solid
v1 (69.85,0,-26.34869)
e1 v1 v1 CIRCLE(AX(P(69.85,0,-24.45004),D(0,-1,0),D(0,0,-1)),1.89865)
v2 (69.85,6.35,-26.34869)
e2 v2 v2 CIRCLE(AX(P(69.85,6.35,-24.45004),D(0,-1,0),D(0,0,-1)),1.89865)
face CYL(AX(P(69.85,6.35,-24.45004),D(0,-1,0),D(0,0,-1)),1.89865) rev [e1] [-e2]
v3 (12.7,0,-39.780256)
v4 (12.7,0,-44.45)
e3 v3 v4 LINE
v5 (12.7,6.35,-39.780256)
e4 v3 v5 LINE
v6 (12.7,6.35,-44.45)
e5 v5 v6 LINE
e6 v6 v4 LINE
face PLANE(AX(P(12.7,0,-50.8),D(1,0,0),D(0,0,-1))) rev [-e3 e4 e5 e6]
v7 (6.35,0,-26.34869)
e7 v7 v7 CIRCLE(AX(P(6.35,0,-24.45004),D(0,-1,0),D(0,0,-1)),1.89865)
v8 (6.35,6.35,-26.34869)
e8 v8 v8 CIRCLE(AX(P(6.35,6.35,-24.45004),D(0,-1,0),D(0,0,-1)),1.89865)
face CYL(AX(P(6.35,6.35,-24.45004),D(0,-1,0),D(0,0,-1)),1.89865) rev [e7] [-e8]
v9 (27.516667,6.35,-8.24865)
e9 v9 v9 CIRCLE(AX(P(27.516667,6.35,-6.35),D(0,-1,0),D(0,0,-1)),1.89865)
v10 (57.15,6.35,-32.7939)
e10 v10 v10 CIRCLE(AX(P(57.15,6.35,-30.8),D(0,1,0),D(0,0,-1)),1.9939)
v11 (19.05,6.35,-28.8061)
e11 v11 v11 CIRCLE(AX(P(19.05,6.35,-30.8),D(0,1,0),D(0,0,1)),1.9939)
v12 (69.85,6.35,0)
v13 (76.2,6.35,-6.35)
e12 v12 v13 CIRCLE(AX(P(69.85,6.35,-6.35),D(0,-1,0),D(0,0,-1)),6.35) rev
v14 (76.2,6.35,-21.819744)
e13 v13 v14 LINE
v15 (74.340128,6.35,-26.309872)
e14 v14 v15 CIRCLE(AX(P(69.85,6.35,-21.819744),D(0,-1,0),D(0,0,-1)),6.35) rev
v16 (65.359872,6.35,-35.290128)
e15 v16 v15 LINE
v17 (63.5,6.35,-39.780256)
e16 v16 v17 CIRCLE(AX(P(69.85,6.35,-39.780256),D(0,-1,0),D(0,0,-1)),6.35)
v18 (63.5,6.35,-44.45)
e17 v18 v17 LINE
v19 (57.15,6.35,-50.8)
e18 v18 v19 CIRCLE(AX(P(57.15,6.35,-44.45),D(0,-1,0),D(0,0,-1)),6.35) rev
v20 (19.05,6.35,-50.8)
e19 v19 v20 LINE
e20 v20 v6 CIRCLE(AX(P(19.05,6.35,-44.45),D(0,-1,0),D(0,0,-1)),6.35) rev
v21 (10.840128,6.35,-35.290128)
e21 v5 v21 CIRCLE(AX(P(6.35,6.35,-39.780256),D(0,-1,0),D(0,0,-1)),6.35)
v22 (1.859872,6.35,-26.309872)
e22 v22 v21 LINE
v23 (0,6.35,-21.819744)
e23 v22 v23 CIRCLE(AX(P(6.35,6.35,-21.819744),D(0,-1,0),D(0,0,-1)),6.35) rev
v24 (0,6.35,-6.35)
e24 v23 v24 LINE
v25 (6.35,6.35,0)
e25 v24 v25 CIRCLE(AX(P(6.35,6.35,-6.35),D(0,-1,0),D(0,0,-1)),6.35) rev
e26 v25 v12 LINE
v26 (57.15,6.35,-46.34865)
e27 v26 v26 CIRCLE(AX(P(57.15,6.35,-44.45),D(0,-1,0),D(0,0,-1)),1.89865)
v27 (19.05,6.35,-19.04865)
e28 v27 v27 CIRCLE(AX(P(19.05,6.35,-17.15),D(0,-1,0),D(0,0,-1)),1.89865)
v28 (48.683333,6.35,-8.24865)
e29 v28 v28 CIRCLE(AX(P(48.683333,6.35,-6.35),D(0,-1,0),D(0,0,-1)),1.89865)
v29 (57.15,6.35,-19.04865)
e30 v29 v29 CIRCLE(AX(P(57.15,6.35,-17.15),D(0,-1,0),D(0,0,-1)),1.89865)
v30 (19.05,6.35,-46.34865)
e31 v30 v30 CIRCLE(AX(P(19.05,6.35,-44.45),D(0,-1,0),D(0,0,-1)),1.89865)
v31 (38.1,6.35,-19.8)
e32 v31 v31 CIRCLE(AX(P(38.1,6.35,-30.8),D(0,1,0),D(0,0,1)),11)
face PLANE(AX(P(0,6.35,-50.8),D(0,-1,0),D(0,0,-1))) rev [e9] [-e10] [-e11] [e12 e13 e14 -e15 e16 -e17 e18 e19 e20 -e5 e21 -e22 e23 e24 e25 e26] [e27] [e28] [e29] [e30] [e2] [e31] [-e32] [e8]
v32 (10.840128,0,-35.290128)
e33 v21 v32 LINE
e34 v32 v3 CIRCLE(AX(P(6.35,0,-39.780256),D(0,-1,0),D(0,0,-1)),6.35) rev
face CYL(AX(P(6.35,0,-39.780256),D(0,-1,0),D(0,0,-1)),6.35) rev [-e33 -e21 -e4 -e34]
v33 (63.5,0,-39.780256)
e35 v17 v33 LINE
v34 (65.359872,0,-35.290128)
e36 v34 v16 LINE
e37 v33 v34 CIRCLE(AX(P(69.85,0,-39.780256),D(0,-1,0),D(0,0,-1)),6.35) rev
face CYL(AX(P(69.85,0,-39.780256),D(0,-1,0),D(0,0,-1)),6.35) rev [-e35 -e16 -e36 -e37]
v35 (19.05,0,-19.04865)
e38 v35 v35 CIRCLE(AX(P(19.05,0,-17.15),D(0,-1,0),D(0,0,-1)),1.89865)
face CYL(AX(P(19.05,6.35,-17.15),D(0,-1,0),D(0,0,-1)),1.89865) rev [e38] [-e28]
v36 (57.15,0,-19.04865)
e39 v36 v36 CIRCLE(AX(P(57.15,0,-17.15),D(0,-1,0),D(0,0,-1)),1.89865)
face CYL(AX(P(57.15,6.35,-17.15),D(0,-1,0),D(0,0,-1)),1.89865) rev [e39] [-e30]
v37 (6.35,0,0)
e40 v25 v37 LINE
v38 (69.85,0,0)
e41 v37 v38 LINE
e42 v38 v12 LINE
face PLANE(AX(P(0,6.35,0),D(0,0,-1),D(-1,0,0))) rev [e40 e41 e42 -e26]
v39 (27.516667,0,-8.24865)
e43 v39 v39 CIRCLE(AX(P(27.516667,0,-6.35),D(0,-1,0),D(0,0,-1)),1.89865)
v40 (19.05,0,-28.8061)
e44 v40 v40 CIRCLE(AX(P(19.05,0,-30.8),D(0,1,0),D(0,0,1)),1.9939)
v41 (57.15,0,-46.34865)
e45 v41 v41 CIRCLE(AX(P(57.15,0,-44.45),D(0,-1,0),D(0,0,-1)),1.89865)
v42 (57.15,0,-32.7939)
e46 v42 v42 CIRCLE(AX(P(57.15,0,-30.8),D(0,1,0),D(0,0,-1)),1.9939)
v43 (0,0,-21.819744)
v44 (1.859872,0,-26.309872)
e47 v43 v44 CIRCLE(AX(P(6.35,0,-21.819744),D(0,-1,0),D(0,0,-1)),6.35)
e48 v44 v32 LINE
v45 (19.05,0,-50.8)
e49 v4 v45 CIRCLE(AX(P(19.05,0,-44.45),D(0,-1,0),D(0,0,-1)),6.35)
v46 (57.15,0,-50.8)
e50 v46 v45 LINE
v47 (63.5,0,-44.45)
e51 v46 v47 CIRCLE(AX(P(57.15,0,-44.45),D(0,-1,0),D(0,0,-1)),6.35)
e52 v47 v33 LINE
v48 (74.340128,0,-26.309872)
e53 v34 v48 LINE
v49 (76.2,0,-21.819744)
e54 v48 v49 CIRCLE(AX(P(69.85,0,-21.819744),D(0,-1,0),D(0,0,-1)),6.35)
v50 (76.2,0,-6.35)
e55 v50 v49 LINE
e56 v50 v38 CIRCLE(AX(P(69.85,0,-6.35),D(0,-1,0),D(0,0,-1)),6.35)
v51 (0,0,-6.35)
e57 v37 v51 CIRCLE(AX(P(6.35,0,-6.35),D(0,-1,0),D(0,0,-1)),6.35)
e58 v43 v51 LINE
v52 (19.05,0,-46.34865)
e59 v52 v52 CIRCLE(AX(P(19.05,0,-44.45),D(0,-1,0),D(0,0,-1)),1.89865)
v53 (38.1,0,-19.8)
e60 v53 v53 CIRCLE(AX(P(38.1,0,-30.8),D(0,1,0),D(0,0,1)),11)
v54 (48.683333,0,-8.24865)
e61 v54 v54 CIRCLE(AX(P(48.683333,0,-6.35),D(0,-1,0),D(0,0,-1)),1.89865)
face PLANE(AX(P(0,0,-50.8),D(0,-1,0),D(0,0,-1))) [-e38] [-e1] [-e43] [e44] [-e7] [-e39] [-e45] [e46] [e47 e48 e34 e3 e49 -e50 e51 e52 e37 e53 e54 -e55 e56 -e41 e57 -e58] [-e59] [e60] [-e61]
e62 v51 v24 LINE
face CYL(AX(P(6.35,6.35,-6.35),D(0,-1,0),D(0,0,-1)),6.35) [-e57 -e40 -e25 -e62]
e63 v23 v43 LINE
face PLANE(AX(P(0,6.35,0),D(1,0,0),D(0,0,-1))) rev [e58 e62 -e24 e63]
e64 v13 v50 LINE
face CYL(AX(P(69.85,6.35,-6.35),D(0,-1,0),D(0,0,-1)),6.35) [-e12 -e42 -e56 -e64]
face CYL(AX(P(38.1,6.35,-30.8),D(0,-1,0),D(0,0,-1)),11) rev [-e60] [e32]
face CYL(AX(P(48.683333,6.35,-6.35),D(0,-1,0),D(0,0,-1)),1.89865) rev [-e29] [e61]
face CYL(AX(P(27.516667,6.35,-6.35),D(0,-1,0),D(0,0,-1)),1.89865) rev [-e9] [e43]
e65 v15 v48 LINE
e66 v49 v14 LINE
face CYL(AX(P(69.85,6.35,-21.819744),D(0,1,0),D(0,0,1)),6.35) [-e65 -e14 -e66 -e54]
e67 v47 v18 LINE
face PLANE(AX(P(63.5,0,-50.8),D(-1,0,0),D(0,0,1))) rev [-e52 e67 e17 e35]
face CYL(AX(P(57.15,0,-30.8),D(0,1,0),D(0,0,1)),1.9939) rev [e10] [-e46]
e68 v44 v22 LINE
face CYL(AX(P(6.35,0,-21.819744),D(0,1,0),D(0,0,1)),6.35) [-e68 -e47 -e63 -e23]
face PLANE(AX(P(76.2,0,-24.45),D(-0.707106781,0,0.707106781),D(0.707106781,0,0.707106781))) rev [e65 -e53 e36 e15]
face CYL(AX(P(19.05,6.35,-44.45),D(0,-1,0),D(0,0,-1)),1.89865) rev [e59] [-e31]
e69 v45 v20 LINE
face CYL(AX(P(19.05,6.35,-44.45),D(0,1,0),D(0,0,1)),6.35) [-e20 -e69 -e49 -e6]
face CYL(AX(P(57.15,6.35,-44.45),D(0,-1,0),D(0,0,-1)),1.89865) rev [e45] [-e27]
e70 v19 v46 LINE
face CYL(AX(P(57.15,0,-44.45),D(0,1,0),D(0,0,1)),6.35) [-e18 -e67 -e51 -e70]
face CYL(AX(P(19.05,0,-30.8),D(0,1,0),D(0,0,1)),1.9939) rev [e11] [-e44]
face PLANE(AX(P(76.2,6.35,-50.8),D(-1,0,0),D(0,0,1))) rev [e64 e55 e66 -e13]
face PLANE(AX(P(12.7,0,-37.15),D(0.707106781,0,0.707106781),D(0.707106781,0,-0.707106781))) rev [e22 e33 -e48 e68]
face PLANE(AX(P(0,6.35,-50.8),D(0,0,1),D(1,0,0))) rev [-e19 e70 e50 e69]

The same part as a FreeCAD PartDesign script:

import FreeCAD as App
import Part
import Sketcher
from FreeCAD import Vector
Q = App.Units.Quantity


def edges_at(feature, points):
    """Names of the edges that pass closest to the given points."""
    edges = feature.Shape.Edges
    near = lambda p: min(range(len(edges)), key=lambda i: edges[i].distToShape(Part.Vertex(*p))[0])
    return sorted({f"Edge{near(p) + 1}" for p in points})


def add_polygon(sketch, points):
    """Adds a closed chain of lines whose ends are joined by coincident constraints."""
    first, n = sketch.GeometryCount, len(points)
    for a, b in zip(points, points[1:] + points[:1]):
        sketch.addGeometry(Part.LineSegment(App.Vector(*a, 0), App.Vector(*b, 0)), False)
    for i in range(n):
        sketch.addConstraint(Sketcher.Constraint("Coincident", first + i, 2, first + (i + 1) % n, 1))

doc = App.newDocument("Part")
body = doc.addObject("PartDesign::Body", "Body")

# Sketch on XZ plane
sketch1 = body.newObject("Sketcher::SketchObject", "Sketch")
sketch1.AttachmentSupport = (doc.getObject("XZ_Plane"), [""])
sketch1.MapMode = "FlatFace"
add_polygon(sketch1, [(0, 0), (76.2, 0), (76.2, -50.8), (0, -50.8)])  # lines 0-3
sketch1.addGeometry(Part.Circle(Vector(38.1, -30.8, 0), Vector(0, 0, 1), 11), False)  # 4
sketch1.addConstraint([
    Sketcher.Constraint("Horizontal", 0),
    Sketcher.Constraint("Vertical", 1),
    Sketcher.Constraint("Horizontal", 2),
    Sketcher.Constraint("Vertical", 3),
    Sketcher.Constraint("Coincident", 3, 2, -1, 1),
    Sketcher.Constraint("DistanceX", 0, 1, 0, 2, Q("3 in")),
    Sketcher.Constraint("DistanceY", 1, 2, 1, 1, Q("2 in")),
    Sketcher.Constraint("DistanceX", -1, 1, 4, 3, Q("1.5 in")),
    Sketcher.Constraint("Diameter", 4, 22.0),
    Sketcher.Constraint("DistanceY", 4, 3, -1, 1, 30.8),
])
pad1 = body.newObject("PartDesign::Pad", "Pad")
pad1.Profile = sketch1
pad1.Length = Q("0.25 in")
pad1.Reversed = True

# Sketch on XZ plane
sketch2 = body.newObject("Sketcher::SketchObject", "Sketch001")
sketch2.AttachmentSupport = (doc.getObject("XZ_Plane"), [""])
sketch2.MapMode = "FlatFace"
sketch2.AttachmentOffset = App.Placement(Vector(0, 0, -0.25 * 25.4), App.Rotation())
sketch2.addGeometry([
    Part.Circle(Vector(19.05, -30.8, 0), Vector(0, 0, 1), 1.9939),
    Part.Circle(Vector(57.15, -30.8, 0), Vector(0, 0, 1), 1.9939),
], False)
sketch2.addConstraint([
    Sketcher.Constraint("Equal", 0, 1),
    Sketcher.Constraint("Horizontal", 0, 3, 1, 3),
    Sketcher.Constraint("Diameter", 0, Q("0.157 in")),
    Sketcher.Constraint("DistanceX", 0, 3, 1, 3, Q("1.5 in")),
    Sketcher.Constraint("DistanceX", -1, 1, 0, 3, Q("0.75 in")),
    Sketcher.Constraint("DistanceY", 0, 3, -1, 1, 30.8),
])
pocket1 = body.newObject("PartDesign::Pocket", "Pocket")
pocket1.Profile = sketch2
pocket1.Type = "ThroughAll"
pocket1.Reversed = True

# Sketch on XZ plane
sketch3 = body.newObject("Sketcher::SketchObject", "Sketch002")
sketch3.AttachmentSupport = (doc.getObject("XZ_Plane"), [""])
sketch3.MapMode = "FlatFace"
sketch3.addGeometry([
    Part.Circle(Vector(57.15, -44.45, 0), Vector(0, 0, 1), 1.89865),
    Part.Circle(Vector(19.05, -44.45, 0), Vector(0, 0, 1), 1.89865),
    Part.Circle(Vector(19.05, -17.15, 0), Vector(0, 0, 1), 1.89865),
    Part.Circle(Vector(57.15, -17.15, 0), Vector(0, 0, 1), 1.89865),
], False)
sketch3.addConstraint([
    Sketcher.Constraint("Equal", 0, 1),
    Sketcher.Constraint("Equal", 1, 2),
    Sketcher.Constraint("Equal", 2, 3),
    Sketcher.Constraint("Horizontal", 0, 3, 1, 3),
    Sketcher.Constraint("Horizontal", 2, 3, 3, 3),
    Sketcher.Constraint("Vertical", 1, 3, 2, 3),
    Sketcher.Constraint("Vertical", 0, 3, 3, 3),
    Sketcher.Constraint("Diameter", 0, Q("0.1495 in")),
    Sketcher.Constraint("DistanceX", 1, 3, 0, 3, Q("1.5 in")),
    Sketcher.Constraint("DistanceX", -1, 1, 0, 3, Q("2.25 in")),
    Sketcher.Constraint("DistanceY", 0, 3, -1, 1, Q("1.75 in")),
    Sketcher.Constraint("DistanceY", 2, 3, -1, 1, 17.15),
])
pocket2 = body.newObject("PartDesign::Pocket", "Pocket001")
pocket2.Profile = sketch3
pocket2.Type = "ThroughAll"

# Sketch on XZ plane
sketch4 = body.newObject("Sketcher::SketchObject", "Sketch003")
sketch4.AttachmentSupport = (doc.getObject("XZ_Plane"), [""])
sketch4.MapMode = "FlatFace"
sketch4.addGeometry([
    Part.Circle(Vector(69.85, -24.45004, 0), Vector(0, 0, 1), 1.89865),
    Part.Circle(Vector(48.683333, -6.35, 0), Vector(0, 0, 1), 1.89865),
    Part.Circle(Vector(27.516667, -6.35, 0), Vector(0, 0, 1), 1.89865),
    Part.Circle(Vector(6.35, -24.45004, 0), Vector(0, 0, 1), 1.89865),
], False)
sketch4.addConstraint([
    Sketcher.Constraint("Equal", 0, 1),
    Sketcher.Constraint("Equal", 1, 2),
    Sketcher.Constraint("Equal", 2, 3),
    Sketcher.Constraint("Horizontal", 1, 3, 2, 3),
    Sketcher.Constraint("Horizontal", 0, 3, 3, 3),
    Sketcher.Constraint("Diameter", 0, Q("0.1495 in")),
    Sketcher.Constraint("DistanceX", 3, 3, 0, 3, Q("2.5 in")),
    Sketcher.Constraint("DistanceX", -1, 1, 0, 3, Q("2.75 in")),
    Sketcher.Constraint("DistanceY", 1, 3, -1, 1, Q("0.25 in")),
    Sketcher.Constraint("DistanceY", 0, 3, -1, 1, Q("0.9626 in")),
    Sketcher.Constraint("DistanceX", -1, 1, 1, 3, 48.683333),
    Sketcher.Constraint("DistanceX", -1, 1, 2, 3, 27.516667),
])
pocket3 = body.newObject("PartDesign::Pocket", "Pocket002")
pocket3.Profile = sketch4
pocket3.Type = "ThroughAll"

# Sketch on XZ plane
sketch5 = body.newObject("Sketcher::SketchObject", "Sketch004")
sketch5.AttachmentSupport = (doc.getObject("XZ_Plane"), [""])
sketch5.MapMode = "FlatFace"
sketch5.AttachmentOffset = App.Placement(Vector(0, 0, -0.25 * 25.4), App.Rotation())
add_polygon(sketch5, [(12.7, -50.8), (0, -50.8), (0, -24.45), (12.7, -37.15)])  # lines 0-3
add_polygon(sketch5, [(63.5, -50.8), (63.5, -37.15), (76.2, -24.45), (76.2, -50.8)])  # lines 4-7
sketch5.addConstraint([
    Sketcher.Constraint("Horizontal", 0),
    Sketcher.Constraint("Vertical", 1),
    Sketcher.Constraint("Vertical", 3),
    Sketcher.Constraint("Vertical", 4),
    Sketcher.Constraint("Vertical", 6),
    Sketcher.Constraint("Horizontal", 7),
    Sketcher.Constraint("PointOnObject", 0, 2, -2),
    Sketcher.Constraint("Perpendicular", 2, 5),
    Sketcher.Constraint("Horizontal", 2, 2, 4, 2),
    Sketcher.Constraint("Horizontal", 1, 2, 5, 2),
    Sketcher.Constraint("Horizontal", 3, 2, 6, 2),
    Sketcher.Constraint("Equal", 0, 7),
    Sketcher.Constraint("DistanceX", 0, 2, 0, 1, Q("0.5 in")),
    Sketcher.Constraint("DistanceY", 0, 2, -1, 1, Q("2 in")),
    Sketcher.Constraint("DistanceX", -1, 1, 5, 2, Q("3 in")),
    Sketcher.Constraint("DistanceY", 1, 1, 1, 2, 26.35),
])
pocket4 = body.newObject("PartDesign::Pocket", "Pocket003")
pocket4.Profile = sketch5
pocket4.Type = "ThroughAll"
pocket4.Reversed = True
doc.recompute()

fillet = body.newObject("PartDesign::Fillet", "Fillet")
fillet.Base = (pocket4, edges_at(pocket4, [
    (0, 3.175, -24.45),
    (12.7, 3.175, -50.8),
    (12.7, 3.175, -37.15),
    (63.5, 3.175, -50.8),
    (76.2, 3.175, -24.45),
    (63.5, 3.175, -37.15),
    (76.2, 3.175, 0),
    (0, 3.175, 0),
]))
fillet.Radius = Q("0.25 in")

doc.recompute()
